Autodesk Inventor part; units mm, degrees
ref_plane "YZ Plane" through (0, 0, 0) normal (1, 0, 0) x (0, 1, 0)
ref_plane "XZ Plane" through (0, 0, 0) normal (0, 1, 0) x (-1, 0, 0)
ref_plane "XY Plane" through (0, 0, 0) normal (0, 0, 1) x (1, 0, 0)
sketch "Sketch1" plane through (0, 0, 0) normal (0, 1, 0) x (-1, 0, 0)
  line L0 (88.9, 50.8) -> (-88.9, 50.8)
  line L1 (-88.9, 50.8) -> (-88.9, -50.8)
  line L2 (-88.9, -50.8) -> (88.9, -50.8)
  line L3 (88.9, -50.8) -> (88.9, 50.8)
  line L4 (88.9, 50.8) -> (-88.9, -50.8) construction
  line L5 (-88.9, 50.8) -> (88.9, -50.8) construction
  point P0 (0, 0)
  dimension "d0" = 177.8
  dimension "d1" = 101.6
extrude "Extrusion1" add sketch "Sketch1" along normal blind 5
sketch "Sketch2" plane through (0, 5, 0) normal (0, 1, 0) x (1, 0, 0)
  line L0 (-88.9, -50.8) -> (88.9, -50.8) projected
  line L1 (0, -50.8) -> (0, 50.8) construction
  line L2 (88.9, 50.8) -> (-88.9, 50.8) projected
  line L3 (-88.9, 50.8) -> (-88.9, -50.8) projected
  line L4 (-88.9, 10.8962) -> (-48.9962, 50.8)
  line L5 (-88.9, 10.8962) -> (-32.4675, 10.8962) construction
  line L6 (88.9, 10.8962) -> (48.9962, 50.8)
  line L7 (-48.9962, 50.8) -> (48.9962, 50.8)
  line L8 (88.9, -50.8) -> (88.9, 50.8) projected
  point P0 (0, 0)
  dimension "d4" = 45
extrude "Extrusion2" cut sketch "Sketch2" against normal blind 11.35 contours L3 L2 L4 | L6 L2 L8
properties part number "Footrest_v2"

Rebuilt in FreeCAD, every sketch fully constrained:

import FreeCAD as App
import Part
import Sketcher

V = App.Vector
Q = App.Units.Quantity


def add_polygon(sketch, points):
    """Adds a closed chain of lines whose ends are joined by coincident constraints."""
    first, n = sketch.GeometryCount, len(points)
    for a, b in zip(points, points[1:] + points[:1]):
        sketch.addGeometry(Part.LineSegment(App.Vector(*a, 0), App.Vector(*b, 0)), False)
    for i in range(n):
        sketch.addConstraint(Sketcher.Constraint("Coincident", first + i, 2, first + (i + 1) % n, 1))

doc = App.newDocument("Part")
body = doc.addObject("PartDesign::Body", "Body")

sketch1 = doc.addObject("Sketcher::SketchObject", "Sketch")
body.addObject(sketch1)
sketch1.AttachmentSupport = (doc.XZ_Plane, [""])
sketch1.MapMode = "FlatFace"
add_polygon(sketch1, [(-88.9, -50.8), (-88.9, 50.8), (88.9, 50.8), (88.9, -50.8)])
sketch1.addConstraint([
    Sketcher.Constraint("Vertical", 0),
    Sketcher.Constraint("Horizontal", 1),
    Sketcher.Constraint("Vertical", 2),
    Sketcher.Constraint("Horizontal", 3),
    Sketcher.Constraint("Symmetric", 0, 2, 2, 2, -1, 1),
    Sketcher.Constraint("DistanceX", 1, 1, 1, 2, Q("7 in")),
    Sketcher.Constraint("DistanceY", 0, 1, 0, 2, Q("4 in")),
])
pad1 = doc.addObject("PartDesign::Pad", "Pad")
body.addObject(pad1)
pad1.Profile = sketch1
pad1.Length = 5
pad1.Reversed = True

sketch2 = doc.addObject("Sketcher::SketchObject", "Sketch001")
body.addObject(sketch2)
sketch2.AttachmentSupport = (doc.XZ_Plane, [""])
sketch2.MapMode = "FlatFace"
sketch2.AttachmentOffset = App.Placement(V(0, 0, -5), App.Rotation())
add_polygon(sketch2, [(-88.9, -50.8), (-88.9, -10.8962), (-48.9962, -50.8)])
add_polygon(sketch2, [(48.9962, -50.8), (88.9, -10.8962), (88.9, -50.8)])
sketch2.addConstraint([
    Sketcher.Constraint("Vertical", 0),
    Sketcher.Constraint("Horizontal", 2),
    Sketcher.Constraint("Vertical", 4),
    Sketcher.Constraint("Horizontal", 5),
    Sketcher.Constraint("Symmetric", 0, 2, 3, 2, -2),
    Sketcher.Constraint("Symmetric", 1, 2, 5, 2, -2),
    Sketcher.Constraint("Perpendicular", 1, 3),
    Sketcher.Constraint("DistanceY", 1, 2, -1, 1, Q("2 in")),
    Sketcher.Constraint("DistanceX", 0, 2, 3, 2, Q("7 in")),
    Sketcher.Constraint("DistanceX", 2, 2, 2, 1, Q("39.9038 mm")),
])
pocket1 = doc.addObject("PartDesign::Pocket", "Pocket")
body.addObject(pocket1)
pocket1.Profile = sketch2
pocket1.Length = 11.35
pocket1.Reversed = True

doc.recompute()
